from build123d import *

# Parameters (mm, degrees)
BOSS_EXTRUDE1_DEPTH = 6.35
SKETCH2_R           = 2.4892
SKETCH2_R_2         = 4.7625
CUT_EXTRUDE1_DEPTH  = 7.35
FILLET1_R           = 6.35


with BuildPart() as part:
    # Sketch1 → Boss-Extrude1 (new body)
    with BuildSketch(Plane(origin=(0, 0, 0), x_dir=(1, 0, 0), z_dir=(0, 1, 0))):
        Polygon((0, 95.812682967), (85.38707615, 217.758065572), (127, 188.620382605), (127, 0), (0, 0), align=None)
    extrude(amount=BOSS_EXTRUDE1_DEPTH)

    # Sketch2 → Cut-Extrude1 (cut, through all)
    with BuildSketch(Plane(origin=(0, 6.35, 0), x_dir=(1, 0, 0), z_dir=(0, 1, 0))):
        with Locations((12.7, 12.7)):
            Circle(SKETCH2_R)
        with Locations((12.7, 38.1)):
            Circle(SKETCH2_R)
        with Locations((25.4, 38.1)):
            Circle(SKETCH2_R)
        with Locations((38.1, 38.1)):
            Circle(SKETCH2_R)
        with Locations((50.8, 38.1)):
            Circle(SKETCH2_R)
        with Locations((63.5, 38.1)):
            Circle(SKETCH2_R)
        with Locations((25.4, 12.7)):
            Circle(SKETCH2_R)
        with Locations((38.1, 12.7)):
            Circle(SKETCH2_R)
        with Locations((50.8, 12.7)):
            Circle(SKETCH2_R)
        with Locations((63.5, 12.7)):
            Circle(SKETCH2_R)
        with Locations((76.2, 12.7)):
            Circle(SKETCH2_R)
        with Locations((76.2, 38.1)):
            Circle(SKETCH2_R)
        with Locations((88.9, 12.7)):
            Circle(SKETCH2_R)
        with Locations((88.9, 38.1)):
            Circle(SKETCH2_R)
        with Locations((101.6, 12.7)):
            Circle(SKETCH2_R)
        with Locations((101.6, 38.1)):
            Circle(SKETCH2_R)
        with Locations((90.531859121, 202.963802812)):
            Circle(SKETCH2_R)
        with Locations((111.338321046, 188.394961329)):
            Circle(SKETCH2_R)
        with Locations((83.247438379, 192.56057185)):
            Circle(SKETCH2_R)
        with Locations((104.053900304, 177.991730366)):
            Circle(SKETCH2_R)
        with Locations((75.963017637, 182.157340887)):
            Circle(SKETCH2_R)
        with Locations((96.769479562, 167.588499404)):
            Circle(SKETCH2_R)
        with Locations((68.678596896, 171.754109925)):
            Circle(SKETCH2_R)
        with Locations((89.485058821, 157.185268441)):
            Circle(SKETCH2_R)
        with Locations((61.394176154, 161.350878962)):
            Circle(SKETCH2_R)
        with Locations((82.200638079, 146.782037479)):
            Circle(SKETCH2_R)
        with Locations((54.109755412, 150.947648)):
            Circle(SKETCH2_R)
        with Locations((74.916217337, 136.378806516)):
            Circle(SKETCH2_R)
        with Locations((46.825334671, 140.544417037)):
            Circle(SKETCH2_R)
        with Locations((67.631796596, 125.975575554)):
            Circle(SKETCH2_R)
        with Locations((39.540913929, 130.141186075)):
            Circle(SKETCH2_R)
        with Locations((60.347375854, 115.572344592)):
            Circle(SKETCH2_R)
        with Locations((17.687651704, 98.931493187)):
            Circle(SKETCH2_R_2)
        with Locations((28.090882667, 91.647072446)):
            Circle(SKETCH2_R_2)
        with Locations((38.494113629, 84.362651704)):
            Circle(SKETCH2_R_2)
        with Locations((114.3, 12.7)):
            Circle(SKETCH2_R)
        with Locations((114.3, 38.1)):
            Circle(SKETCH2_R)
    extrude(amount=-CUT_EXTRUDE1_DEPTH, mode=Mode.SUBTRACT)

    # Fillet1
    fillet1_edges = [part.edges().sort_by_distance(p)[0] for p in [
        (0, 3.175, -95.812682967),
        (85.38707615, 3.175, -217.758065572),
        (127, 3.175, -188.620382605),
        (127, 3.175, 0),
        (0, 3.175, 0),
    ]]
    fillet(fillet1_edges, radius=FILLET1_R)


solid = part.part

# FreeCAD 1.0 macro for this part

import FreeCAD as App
import Part
import Sketcher

V = App.Vector
Q = App.Units.Quantity


def edges_at(feature, points):
    """Names of the edges that pass closest to the given points."""
    edges = feature.Shape.Edges
    near = lambda p: min(range(len(edges)), key=lambda i: edges[i].distToShape(Part.Vertex(*p))[0])
    return sorted({f"Edge{near(p) + 1}" for p in points})


def add_polygon(sketch, points):
    """Adds a closed chain of lines whose ends are joined by coincident constraints."""
    first, n = sketch.GeometryCount, len(points)
    for a, b in zip(points, points[1:] + points[:1]):
        sketch.addGeometry(Part.LineSegment(App.Vector(*a, 0), App.Vector(*b, 0)), False)
    for i in range(n):
        sketch.addConstraint(Sketcher.Constraint("Coincident", first + i, 2, first + (i + 1) % n, 1))

doc = App.newDocument("Part")
body = doc.addObject("PartDesign::Body", "Body")

sketch1 = body.newObject("Sketcher::SketchObject", "Sketch")
sketch1.AttachmentSupport = (doc.getObject("XZ_Plane"), [""])
sketch1.MapMode = "FlatFace"
add_polygon(sketch1, [(85.387076, -217.758066), (0, -95.812683), (0, 0), (127, 0), (127, -188.620383)])
sketch1.addConstraint([
    Sketcher.Constraint("Vertical", 1),
    Sketcher.Constraint("Horizontal", 2),
    Sketcher.Constraint("Vertical", 3),
    Sketcher.Constraint("Coincident", 1, 2, -1, 1),
    Sketcher.Constraint("Perpendicular", 0, 4),
    Sketcher.Constraint("DistanceX", 2, 1, 2, 2, Q("5 in")),
    Sketcher.Constraint("Distance", 4, Q("2 in")),
    Sketcher.Constraint("Angle", 0, Q("125 deg")),
    Sketcher.Constraint("DistanceY", 1, 1, 1, 2, 95.812683),
])
pad1 = body.newObject("PartDesign::Pad", "Pad")
pad1.Profile = sketch1
pad1.Length = Q("0.25 in")
pad1.Reversed = True

sketch2 = body.newObject("Sketcher::SketchObject", "Sketch001")
sketch2.AttachmentSupport = (doc.getObject("XZ_Plane"), [""])
sketch2.MapMode = "FlatFace"
sketch2.AttachmentOffset = App.Placement(V(0, 0, -0.25 * 25.4), App.Rotation())
sketch2.addGeometry([
    Part.Circle(V(12.7, -12.7, 0), V(0, 0, 1), 2.4892),
    Part.Circle(V(12.7, -38.1, 0), V(0, 0, 1), 2.4892),
    Part.Circle(V(25.4, -38.1, 0), V(0, 0, 1), 2.4892),
    Part.Circle(V(38.1, -38.1, 0), V(0, 0, 1), 2.4892),
    Part.Circle(V(50.8, -38.1, 0), V(0, 0, 1), 2.4892),
    Part.Circle(V(63.5, -38.1, 0), V(0, 0, 1), 2.4892),
    Part.Circle(V(25.4, -12.7, 0), V(0, 0, 1), 2.4892),
    Part.Circle(V(38.1, -12.7, 0), V(0, 0, 1), 2.4892),
    Part.Circle(V(50.8, -12.7, 0), V(0, 0, 1), 2.4892),
    Part.Circle(V(63.5, -12.7, 0), V(0, 0, 1), 2.4892),
    Part.Circle(V(76.2, -12.7, 0), V(0, 0, 1), 2.4892),
    Part.Circle(V(76.2, -38.1, 0), V(0, 0, 1), 2.4892),
    Part.Circle(V(88.9, -12.7, 0), V(0, 0, 1), 2.4892),
    Part.Circle(V(88.9, -38.1, 0), V(0, 0, 1), 2.4892),
    Part.Circle(V(101.6, -12.7, 0), V(0, 0, 1), 2.4892),
    Part.Circle(V(101.6, -38.1, 0), V(0, 0, 1), 2.4892),
    Part.Circle(V(90.531859, -202.963803, 0), V(0, 0, 1), 2.4892),
    Part.Circle(V(111.338321, -188.394961, 0), V(0, 0, 1), 2.4892),
    Part.Circle(V(83.247438, -192.560572, 0), V(0, 0, 1), 2.4892),
    Part.Circle(V(104.0539, -177.99173, 0), V(0, 0, 1), 2.4892),
    Part.Circle(V(75.963018, -182.157341, 0), V(0, 0, 1), 2.4892),
    Part.Circle(V(96.76948, -167.588499, 0), V(0, 0, 1), 2.4892),
    Part.Circle(V(68.678597, -171.75411, 0), V(0, 0, 1), 2.4892),
    Part.Circle(V(89.485059, -157.185268, 0), V(0, 0, 1), 2.4892),
    Part.Circle(V(61.394176, -161.350879, 0), V(0, 0, 1), 2.4892),
    Part.Circle(V(82.200638, -146.782037, 0), V(0, 0, 1), 2.4892),
    Part.Circle(V(54.109755, -150.947648, 0), V(0, 0, 1), 2.4892),
    Part.Circle(V(74.916217, -136.378807, 0), V(0, 0, 1), 2.4892),
    Part.Circle(V(46.825335, -140.544417, 0), V(0, 0, 1), 2.4892),
    Part.Circle(V(67.631797, -125.975576, 0), V(0, 0, 1), 2.4892),
    Part.Circle(V(39.540914, -130.141186, 0), V(0, 0, 1), 2.4892),
    Part.Circle(V(60.347376, -115.572345, 0), V(0, 0, 1), 2.4892),
    Part.Circle(V(17.687652, -98.931493, 0), V(0, 0, 1), 4.7625),
    Part.Circle(V(28.090883, -91.647072, 0), V(0, 0, 1), 4.7625),
    Part.Circle(V(38.494114, -84.362652, 0), V(0, 0, 1), 4.7625),
    Part.Circle(V(114.3, -12.7, 0), V(0, 0, 1), 2.4892),
    Part.Circle(V(114.3, -38.1, 0), V(0, 0, 1), 2.4892),
], False)
sketch2.addConstraint([
    Sketcher.Constraint("Equal", 0, 1),
    Sketcher.Constraint("Equal", 1, 2),
    Sketcher.Constraint("Equal", 2, 3),
    Sketcher.Constraint("Equal", 3, 4),
    Sketcher.Constraint("Equal", 4, 5),
    Sketcher.Constraint("Equal", 5, 6),
    Sketcher.Constraint("Equal", 6, 7),
    Sketcher.Constraint("Equal", 7, 8),
    Sketcher.Constraint("Equal", 8, 9),
    Sketcher.Constraint("Equal", 9, 10),
    Sketcher.Constraint("Equal", 10, 11),
    Sketcher.Constraint("Equal", 11, 12),
    Sketcher.Constraint("Equal", 12, 13),
    Sketcher.Constraint("Equal", 13, 14),
    Sketcher.Constraint("Equal", 14, 15),
    Sketcher.Constraint("Equal", 15, 16),
    Sketcher.Constraint("Equal", 16, 17),
    Sketcher.Constraint("Equal", 17, 18),
    Sketcher.Constraint("Equal", 18, 19),
    Sketcher.Constraint("Equal", 19, 20),
    Sketcher.Constraint("Equal", 20, 21),
    Sketcher.Constraint("Equal", 21, 22),
    Sketcher.Constraint("Equal", 22, 23),
    Sketcher.Constraint("Equal", 23, 24),
    Sketcher.Constraint("Equal", 24, 25),
    Sketcher.Constraint("Equal", 25, 26),
    Sketcher.Constraint("Equal", 26, 27),
    Sketcher.Constraint("Equal", 27, 28),
    Sketcher.Constraint("Equal", 28, 29),
    Sketcher.Constraint("Equal", 29, 30),
    Sketcher.Constraint("Equal", 30, 31),
    Sketcher.Constraint("Equal", 32, 33),
    Sketcher.Constraint("Equal", 33, 34),
    Sketcher.Constraint("Equal", 31, 35),
    Sketcher.Constraint("Equal", 35, 36),
    Sketcher.Constraint("Horizontal", 1, 3, 2, 3),
    Sketcher.Constraint("Horizontal", 2, 3, 3, 3),
    Sketcher.Constraint("Horizontal", 3, 3, 4, 3),
    Sketcher.Constraint("Horizontal", 4, 3, 5, 3),
    Sketcher.Constraint("Horizontal", 0, 3, 6, 3),
    Sketcher.Constraint("Horizontal", 6, 3, 7, 3),
    Sketcher.Constraint("Horizontal", 7, 3, 8, 3),
    Sketcher.Constraint("Horizontal", 8, 3, 9, 3),
    Sketcher.Constraint("Horizontal", 9, 3, 10, 3),
    Sketcher.Constraint("Horizontal", 5, 3, 11, 3),
    Sketcher.Constraint("Horizontal", 10, 3, 12, 3),
    Sketcher.Constraint("Horizontal", 11, 3, 13, 3),
    Sketcher.Constraint("Horizontal", 12, 3, 14, 3),
    Sketcher.Constraint("Horizontal", 13, 3, 15, 3),
    Sketcher.Constraint("Horizontal", 14, 3, 35, 3),
    Sketcher.Constraint("Horizontal", 15, 3, 36, 3),
    Sketcher.Constraint("Vertical", 0, 3, 1, 3),
    Sketcher.Constraint("Vertical", 2, 3, 6, 3),
    Sketcher.Constraint("Vertical", 3, 3, 7, 3),
    Sketcher.Constraint("Vertical", 4, 3, 8, 3),
    Sketcher.Constraint("Vertical", 5, 3, 9, 3),
    Sketcher.Constraint("Vertical", 10, 3, 11, 3),
    Sketcher.Constraint("Vertical", 12, 3, 13, 3),
    Sketcher.Constraint("Vertical", 14, 3, 15, 3),
    Sketcher.Constraint("Vertical", 35, 3, 36, 3),
    Sketcher.Constraint("Diameter", 0, Q("0.196 in")),
    Sketcher.Constraint("Diameter", 32, Q("0.375 in")),
    Sketcher.Constraint("DistanceX", -1, 1, 2, 3, Q("1 in")),
    Sketcher.Constraint("DistanceX", -1, 1, 4, 3, Q("2 in")),
    Sketcher.Constraint("DistanceX", -1, 1, 10, 3, Q("3 in")),
    Sketcher.Constraint("DistanceX", -1, 1, 14, 3, Q("4 in")),
    Sketcher.Constraint("DistanceY", 1, 3, 0, 3, Q("1 in")),
    Sketcher.Constraint("DistanceX", 1, 3, 3, 3, Q("1 in")),
    Sketcher.Constraint("DistanceX", 3, 3, 5, 3, Q("1 in")),
    Sketcher.Constraint("DistanceX", 9, 3, 12, 3, Q("1 in")),
    Sketcher.Constraint("DistanceX", 12, 3, 35, 3, Q("1 in")),
    Sketcher.Constraint("DistanceX", -1, 1, 0, 3, Q("0.5 in")),
    Sketcher.Constraint("DistanceY", 0, 3, -1, 1, Q("0.5 in")),
    Sketcher.Constraint("DistanceX", -1, 1, 19, 3, 104.0539),
    Sketcher.Constraint("DistanceY", 21, 3, -1, 1, 167.588499),
    Sketcher.Constraint("DistanceX", 34, 3, 30, 3, 1.0468),
    Sketcher.Constraint("DistanceX", -1, 1, 16, 3, 90.531859),
    Sketcher.Constraint("DistanceX", -1, 1, 17, 3, 111.338321),
    Sketcher.Constraint("DistanceY", 17, 3, -1, 1, 188.394961),
    Sketcher.Constraint("DistanceX", -1, 1, 18, 3, 83.247438),
    Sketcher.Constraint("DistanceY", 18, 3, -1, 1, 192.560572),
    Sketcher.Constraint("DistanceY", 19, 3, -1, 1, 177.99173),
    Sketcher.Constraint("DistanceY", 20, 3, -1, 1, 182.157341),
    Sketcher.Constraint("DistanceX", -1, 1, 21, 3, 96.76948),
    Sketcher.Constraint("DistanceY", 22, 3, -1, 1, 171.75411),
    Sketcher.Constraint("DistanceX", -1, 1, 23, 3, 89.485059),
    Sketcher.Constraint("DistanceY", 23, 3, -1, 1, 157.185268),
    Sketcher.Constraint("DistanceY", 24, 3, -1, 1, 161.350879),
    Sketcher.Constraint("DistanceX", -1, 1, 25, 3, 82.200638),
    Sketcher.Constraint("DistanceX", -1, 1, 32, 3, 17.687652),
    Sketcher.Constraint("DistanceY", 34, 3, -1, 1, 84.362652),
    Sketcher.Constraint("DistanceY", 16, 3, 17, 3, 14.568841),
    Sketcher.Constraint("DistanceX", 20, 3, 18, 3, 7.284421),
    Sketcher.Constraint("DistanceX", 22, 3, 20, 3, 7.284421),
    Sketcher.Constraint("DistanceX", 24, 3, 22, 3, 7.284421),
    Sketcher.Constraint("DistanceY", 23, 3, 25, 3, 10.403231),
    Sketcher.Constraint("DistanceX", 26, 3, 24, 3, 7.284421),
    Sketcher.Constraint("DistanceY", 24, 3, 26, 3, 10.403231),
    Sketcher.Constraint("DistanceX", 27, 3, 25, 3, 7.284421),
    Sketcher.Constraint("DistanceY", 25, 3, 27, 3, 10.403231),
    Sketcher.Constraint("DistanceX", 28, 3, 26, 3, 7.284421),
    Sketcher.Constraint("DistanceY", 26, 3, 28, 3, 10.403231),
    Sketcher.Constraint("DistanceX", 29, 3, 27, 3, 7.284421),
    Sketcher.Constraint("DistanceY", 27, 3, 29, 3, 10.403231),
    Sketcher.Constraint("DistanceX", 30, 3, 28, 3, 7.284421),
    Sketcher.Constraint("DistanceY", 28, 3, 30, 3, 10.403231),
    Sketcher.Constraint("DistanceX", 31, 3, 29, 3, 7.284421),
    Sketcher.Constraint("DistanceY", 29, 3, 31, 3, 10.403231),
    Sketcher.Constraint("DistanceY", 31, 3, 32, 3, 16.640851),
    Sketcher.Constraint("DistanceX", 32, 3, 33, 3, 10.403231),
    Sketcher.Constraint("DistanceY", 32, 3, 33, 3, 7.284421),
])
pocket1 = body.newObject("PartDesign::Pocket", "Pocket")
pocket1.Profile = sketch2
pocket1.Type = "ThroughAll"
pocket1.Reversed = True
doc.recompute()

fillet = body.newObject("PartDesign::Fillet", "Fillet")
fillet.Base = (pocket1, edges_at(pocket1, [
    (0, 3.175, -95.813),
    (85.387, 3.175, -217.758),
    (127, 3.175, -188.62),
    (127, 3.175, 0),
    (0, 3.175, 0),
]))
fillet.Radius = Q("0.25 in")

doc.recompute()
